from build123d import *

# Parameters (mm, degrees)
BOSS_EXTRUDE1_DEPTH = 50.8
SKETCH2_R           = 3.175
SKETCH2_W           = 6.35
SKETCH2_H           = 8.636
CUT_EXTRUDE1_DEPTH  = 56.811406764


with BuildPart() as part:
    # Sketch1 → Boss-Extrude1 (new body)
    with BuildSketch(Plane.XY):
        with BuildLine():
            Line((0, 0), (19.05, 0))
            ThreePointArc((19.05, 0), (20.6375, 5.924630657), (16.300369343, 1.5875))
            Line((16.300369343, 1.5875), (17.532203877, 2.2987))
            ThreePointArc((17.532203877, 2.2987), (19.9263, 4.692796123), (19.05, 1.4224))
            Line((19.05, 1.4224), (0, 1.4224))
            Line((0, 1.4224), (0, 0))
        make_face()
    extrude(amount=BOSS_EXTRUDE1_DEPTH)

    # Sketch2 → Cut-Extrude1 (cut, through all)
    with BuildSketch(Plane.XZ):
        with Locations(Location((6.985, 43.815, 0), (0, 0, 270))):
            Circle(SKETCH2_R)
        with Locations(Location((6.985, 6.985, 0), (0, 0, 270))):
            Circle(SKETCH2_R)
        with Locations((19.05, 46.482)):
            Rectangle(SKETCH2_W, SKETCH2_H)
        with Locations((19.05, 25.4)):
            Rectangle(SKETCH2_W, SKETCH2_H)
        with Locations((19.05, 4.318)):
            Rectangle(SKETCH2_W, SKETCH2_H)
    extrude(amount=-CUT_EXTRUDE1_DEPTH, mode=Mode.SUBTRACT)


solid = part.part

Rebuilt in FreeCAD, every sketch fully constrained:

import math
import FreeCAD as App
import Part
import Sketcher

V = App.Vector
Q = App.Units.Quantity

doc = App.newDocument("Part")
params = doc.addObject("Spreadsheet::Sheet", "Params")
for row, (alias, value) in enumerate([
    ("sketch1_radius", "0.125 in"),
    ("sketch1_radius2", "0.069 in"),
    ("sketch1_width", "0.75 in"),
    ("pad1_length", "2 in"),
    ("sketch2_diameter", "0.25 in"),
    ("sketch2_width", "0.25 in"),
    ("sketch2_height", "0.34 in"),
], start=1):
    params.set(f"A{row}", alias)
    params.set(f"B{row}", "=" + value)
    params.setAlias(f"B{row}", alias)

body = doc.addObject("PartDesign::Body", "Body")

# Sketch on XY plane
sketch1 = body.newObject("Sketcher::SketchObject", "Sketch")
sketch1.AttachmentSupport = (doc.getObject("XY_Plane"), [""])
sketch1.MapMode = "FlatFace"
sketch1.addGeometry([
    Part.LineSegment(V(0, 0, 0), V(19.05, 0, 0)),  # 0
    Part.ArcOfCircle(Part.Circle(V(19.05, 3.175, 0), V(0, 0, 1), 3.175), math.radians(-90), math.radians(210)),  # 1
    Part.LineSegment(V(16.300369, 1.5875, 0), V(17.532204, 2.2987, 0)),  # 2
    Part.ArcOfCircle(Part.Circle(V(19.05, 3.175, 0), V(0, 0, 1), 1.7526), math.radians(-90), math.radians(210)),  # 3
    Part.LineSegment(V(19.05, 1.4224, 0), V(0, 1.4224, 0)),  # 4
    Part.LineSegment(V(0, 1.4224, 0), V(0, 0, 0)),  # 5
], False)
sketch1.addConstraint([
    Sketcher.Constraint("Tangent", 0, 2, 1, 1),
    Sketcher.Constraint("Coincident", 1, 2, 2, 1),
    Sketcher.Constraint("Coincident", 2, 2, 3, 2),
    Sketcher.Constraint("Tangent", 3, 1, 4, 1),
    Sketcher.Constraint("Coincident", 4, 2, 5, 1),
    Sketcher.Constraint("Coincident", 5, 2, 0, 1),
    Sketcher.Constraint("Horizontal", 0),
    Sketcher.Constraint("Horizontal", 4),
    Sketcher.Constraint("Vertical", 5),
    Sketcher.Constraint("Coincident", 5, 2, -1, 1),
    Sketcher.Constraint("Coincident", 3, 3, 1, 3),
    Sketcher.Constraint("Angle", 2, Q("30 deg")),
    Sketcher.Constraint("Radius", 1, Q("0.125 in")),
    Sketcher.Constraint("Radius", 3, Q("0.069 in")),
    Sketcher.Constraint("DistanceX", 0, 1, 0, 2, Q("0.75 in")),
    Sketcher.Constraint("DistanceY", -1, 1, 1, 2, Q("0.0625 in")),
])
sketch1.setExpression("Constraints[12]", "Params.sketch1_radius")
sketch1.setExpression("Constraints[13]", "Params.sketch1_radius2")
sketch1.setExpression("Constraints[14]", "Params.sketch1_width")
pad1 = body.newObject("PartDesign::Pad", "Pad")
pad1.Profile = sketch1
pad1.setExpression("Length", "Params.pad1_length")

# Sketch on XZ plane
sketch2 = body.newObject("Sketcher::SketchObject", "Sketch001")
sketch2.AttachmentSupport = (doc.getObject("XZ_Plane"), [""])
sketch2.MapMode = "FlatFace"
sketch2.addGeometry([
    Part.Circle(V(6.985, 43.815, 0), V(0, 0, 1), 3.175),  # 0
    Part.Circle(V(6.985, 6.985, 0), V(0, 0, 1), 3.175),  # 1
    Part.LineSegment(V(15.875, 50.8, 0), V(15.875, 42.164, 0)),  # 2
    Part.LineSegment(V(15.875, 42.164, 0), V(22.225, 42.164, 0)),  # 3
    Part.LineSegment(V(22.225, 42.164, 0), V(22.225, 50.8, 0)),  # 4
    Part.LineSegment(V(22.225, 50.8, 0), V(15.875, 50.8, 0)),  # 5
    Part.LineSegment(V(15.875, 29.718, 0), V(15.875, 21.082, 0)),  # 6
    Part.LineSegment(V(15.875, 21.082, 0), V(22.225, 21.082, 0)),  # 7
    Part.LineSegment(V(22.225, 21.082, 0), V(22.225, 29.718, 0)),  # 8
    Part.LineSegment(V(22.225, 29.718, 0), V(15.875, 29.718, 0)),  # 9
    Part.LineSegment(V(15.875, 8.636, 0), V(15.875, 0, 0)),  # 10
    Part.LineSegment(V(15.875, 0, 0), V(22.225, 0, 0)),  # 11
    Part.LineSegment(V(22.225, 0, 0), V(22.225, 8.636, 0)),  # 12
    Part.LineSegment(V(22.225, 8.636, 0), V(15.875, 8.636, 0)),  # 13
], False)
sketch2.addConstraint([
    Sketcher.Constraint("Coincident", 2, 2, 3, 1),
    Sketcher.Constraint("Coincident", 3, 2, 4, 1),
    Sketcher.Constraint("Coincident", 4, 2, 5, 1),
    Sketcher.Constraint("Coincident", 5, 2, 2, 1),
    Sketcher.Constraint("Coincident", 6, 2, 7, 1),
    Sketcher.Constraint("Coincident", 7, 2, 8, 1),
    Sketcher.Constraint("Coincident", 8, 2, 9, 1),
    Sketcher.Constraint("Coincident", 9, 2, 6, 1),
    Sketcher.Constraint("Coincident", 10, 2, 11, 1),
    Sketcher.Constraint("Coincident", 11, 2, 12, 1),
    Sketcher.Constraint("Coincident", 12, 2, 13, 1),
    Sketcher.Constraint("Coincident", 13, 2, 10, 1),
    Sketcher.Constraint("Vertical", 2),
    Sketcher.Constraint("Horizontal", 3),
    Sketcher.Constraint("Vertical", 4),
    Sketcher.Constraint("Horizontal", 5),
    Sketcher.Constraint("Vertical", 6),
    Sketcher.Constraint("Horizontal", 7),
    Sketcher.Constraint("Vertical", 8),
    Sketcher.Constraint("Horizontal", 9),
    Sketcher.Constraint("Vertical", 10),
    Sketcher.Constraint("Horizontal", 11),
    Sketcher.Constraint("Vertical", 12),
    Sketcher.Constraint("Horizontal", 13),
    Sketcher.Constraint("Equal", 0, 1),
    Sketcher.Constraint("PointOnObject", 10, 2, -1),
    Sketcher.Constraint("Vertical", 0, 3, 1, 3),
    Sketcher.Constraint("Vertical", 5, 2, 6, 2),
    Sketcher.Constraint("Vertical", 4, 2, 7, 2),
    Sketcher.Constraint("Vertical", 9, 2, 10, 2),
    Sketcher.Constraint("Vertical", 8, 2, 11, 2),
    Sketcher.Constraint("Equal", 4, 6),
    Sketcher.Constraint("Equal", 8, 10),
    Sketcher.Constraint("Diameter", 0, Q("0.25 in")),
    Sketcher.Constraint("DistanceY", -1, 1, 4, 2, Q("2 in")),
    Sketcher.Constraint("DistanceX", 3, 1, 3, 2, Q("0.25 in")),
    Sketcher.Constraint("DistanceY", 2, 2, 2, 1, Q("0.34 in")),
    Sketcher.Constraint("DistanceX", 0, 3, 3, 2, Q("0.6 in")),
    Sketcher.Constraint("DistanceY", -1, 1, 6, 2, Q("0.83 in")),
    Sketcher.Constraint("DistanceY", 1, 3, 0, 3, Q("1.45 in")),
    Sketcher.Constraint("DistanceX", -1, 1, 0, 3, Q("0.275 in")),
    Sketcher.Constraint("DistanceY", -1, 1, 0, 3, Q("1.725 in")),
])
sketch2.setExpression("Constraints[33]", "Params.sketch2_diameter")
sketch2.setExpression("Constraints[35]", "Params.sketch2_width")
sketch2.setExpression("Constraints[36]", "Params.sketch2_height")
pocket1 = body.newObject("PartDesign::Pocket", "Pocket")
pocket1.Profile = sketch2
pocket1.Type = "ThroughAll"

doc.recompute()
